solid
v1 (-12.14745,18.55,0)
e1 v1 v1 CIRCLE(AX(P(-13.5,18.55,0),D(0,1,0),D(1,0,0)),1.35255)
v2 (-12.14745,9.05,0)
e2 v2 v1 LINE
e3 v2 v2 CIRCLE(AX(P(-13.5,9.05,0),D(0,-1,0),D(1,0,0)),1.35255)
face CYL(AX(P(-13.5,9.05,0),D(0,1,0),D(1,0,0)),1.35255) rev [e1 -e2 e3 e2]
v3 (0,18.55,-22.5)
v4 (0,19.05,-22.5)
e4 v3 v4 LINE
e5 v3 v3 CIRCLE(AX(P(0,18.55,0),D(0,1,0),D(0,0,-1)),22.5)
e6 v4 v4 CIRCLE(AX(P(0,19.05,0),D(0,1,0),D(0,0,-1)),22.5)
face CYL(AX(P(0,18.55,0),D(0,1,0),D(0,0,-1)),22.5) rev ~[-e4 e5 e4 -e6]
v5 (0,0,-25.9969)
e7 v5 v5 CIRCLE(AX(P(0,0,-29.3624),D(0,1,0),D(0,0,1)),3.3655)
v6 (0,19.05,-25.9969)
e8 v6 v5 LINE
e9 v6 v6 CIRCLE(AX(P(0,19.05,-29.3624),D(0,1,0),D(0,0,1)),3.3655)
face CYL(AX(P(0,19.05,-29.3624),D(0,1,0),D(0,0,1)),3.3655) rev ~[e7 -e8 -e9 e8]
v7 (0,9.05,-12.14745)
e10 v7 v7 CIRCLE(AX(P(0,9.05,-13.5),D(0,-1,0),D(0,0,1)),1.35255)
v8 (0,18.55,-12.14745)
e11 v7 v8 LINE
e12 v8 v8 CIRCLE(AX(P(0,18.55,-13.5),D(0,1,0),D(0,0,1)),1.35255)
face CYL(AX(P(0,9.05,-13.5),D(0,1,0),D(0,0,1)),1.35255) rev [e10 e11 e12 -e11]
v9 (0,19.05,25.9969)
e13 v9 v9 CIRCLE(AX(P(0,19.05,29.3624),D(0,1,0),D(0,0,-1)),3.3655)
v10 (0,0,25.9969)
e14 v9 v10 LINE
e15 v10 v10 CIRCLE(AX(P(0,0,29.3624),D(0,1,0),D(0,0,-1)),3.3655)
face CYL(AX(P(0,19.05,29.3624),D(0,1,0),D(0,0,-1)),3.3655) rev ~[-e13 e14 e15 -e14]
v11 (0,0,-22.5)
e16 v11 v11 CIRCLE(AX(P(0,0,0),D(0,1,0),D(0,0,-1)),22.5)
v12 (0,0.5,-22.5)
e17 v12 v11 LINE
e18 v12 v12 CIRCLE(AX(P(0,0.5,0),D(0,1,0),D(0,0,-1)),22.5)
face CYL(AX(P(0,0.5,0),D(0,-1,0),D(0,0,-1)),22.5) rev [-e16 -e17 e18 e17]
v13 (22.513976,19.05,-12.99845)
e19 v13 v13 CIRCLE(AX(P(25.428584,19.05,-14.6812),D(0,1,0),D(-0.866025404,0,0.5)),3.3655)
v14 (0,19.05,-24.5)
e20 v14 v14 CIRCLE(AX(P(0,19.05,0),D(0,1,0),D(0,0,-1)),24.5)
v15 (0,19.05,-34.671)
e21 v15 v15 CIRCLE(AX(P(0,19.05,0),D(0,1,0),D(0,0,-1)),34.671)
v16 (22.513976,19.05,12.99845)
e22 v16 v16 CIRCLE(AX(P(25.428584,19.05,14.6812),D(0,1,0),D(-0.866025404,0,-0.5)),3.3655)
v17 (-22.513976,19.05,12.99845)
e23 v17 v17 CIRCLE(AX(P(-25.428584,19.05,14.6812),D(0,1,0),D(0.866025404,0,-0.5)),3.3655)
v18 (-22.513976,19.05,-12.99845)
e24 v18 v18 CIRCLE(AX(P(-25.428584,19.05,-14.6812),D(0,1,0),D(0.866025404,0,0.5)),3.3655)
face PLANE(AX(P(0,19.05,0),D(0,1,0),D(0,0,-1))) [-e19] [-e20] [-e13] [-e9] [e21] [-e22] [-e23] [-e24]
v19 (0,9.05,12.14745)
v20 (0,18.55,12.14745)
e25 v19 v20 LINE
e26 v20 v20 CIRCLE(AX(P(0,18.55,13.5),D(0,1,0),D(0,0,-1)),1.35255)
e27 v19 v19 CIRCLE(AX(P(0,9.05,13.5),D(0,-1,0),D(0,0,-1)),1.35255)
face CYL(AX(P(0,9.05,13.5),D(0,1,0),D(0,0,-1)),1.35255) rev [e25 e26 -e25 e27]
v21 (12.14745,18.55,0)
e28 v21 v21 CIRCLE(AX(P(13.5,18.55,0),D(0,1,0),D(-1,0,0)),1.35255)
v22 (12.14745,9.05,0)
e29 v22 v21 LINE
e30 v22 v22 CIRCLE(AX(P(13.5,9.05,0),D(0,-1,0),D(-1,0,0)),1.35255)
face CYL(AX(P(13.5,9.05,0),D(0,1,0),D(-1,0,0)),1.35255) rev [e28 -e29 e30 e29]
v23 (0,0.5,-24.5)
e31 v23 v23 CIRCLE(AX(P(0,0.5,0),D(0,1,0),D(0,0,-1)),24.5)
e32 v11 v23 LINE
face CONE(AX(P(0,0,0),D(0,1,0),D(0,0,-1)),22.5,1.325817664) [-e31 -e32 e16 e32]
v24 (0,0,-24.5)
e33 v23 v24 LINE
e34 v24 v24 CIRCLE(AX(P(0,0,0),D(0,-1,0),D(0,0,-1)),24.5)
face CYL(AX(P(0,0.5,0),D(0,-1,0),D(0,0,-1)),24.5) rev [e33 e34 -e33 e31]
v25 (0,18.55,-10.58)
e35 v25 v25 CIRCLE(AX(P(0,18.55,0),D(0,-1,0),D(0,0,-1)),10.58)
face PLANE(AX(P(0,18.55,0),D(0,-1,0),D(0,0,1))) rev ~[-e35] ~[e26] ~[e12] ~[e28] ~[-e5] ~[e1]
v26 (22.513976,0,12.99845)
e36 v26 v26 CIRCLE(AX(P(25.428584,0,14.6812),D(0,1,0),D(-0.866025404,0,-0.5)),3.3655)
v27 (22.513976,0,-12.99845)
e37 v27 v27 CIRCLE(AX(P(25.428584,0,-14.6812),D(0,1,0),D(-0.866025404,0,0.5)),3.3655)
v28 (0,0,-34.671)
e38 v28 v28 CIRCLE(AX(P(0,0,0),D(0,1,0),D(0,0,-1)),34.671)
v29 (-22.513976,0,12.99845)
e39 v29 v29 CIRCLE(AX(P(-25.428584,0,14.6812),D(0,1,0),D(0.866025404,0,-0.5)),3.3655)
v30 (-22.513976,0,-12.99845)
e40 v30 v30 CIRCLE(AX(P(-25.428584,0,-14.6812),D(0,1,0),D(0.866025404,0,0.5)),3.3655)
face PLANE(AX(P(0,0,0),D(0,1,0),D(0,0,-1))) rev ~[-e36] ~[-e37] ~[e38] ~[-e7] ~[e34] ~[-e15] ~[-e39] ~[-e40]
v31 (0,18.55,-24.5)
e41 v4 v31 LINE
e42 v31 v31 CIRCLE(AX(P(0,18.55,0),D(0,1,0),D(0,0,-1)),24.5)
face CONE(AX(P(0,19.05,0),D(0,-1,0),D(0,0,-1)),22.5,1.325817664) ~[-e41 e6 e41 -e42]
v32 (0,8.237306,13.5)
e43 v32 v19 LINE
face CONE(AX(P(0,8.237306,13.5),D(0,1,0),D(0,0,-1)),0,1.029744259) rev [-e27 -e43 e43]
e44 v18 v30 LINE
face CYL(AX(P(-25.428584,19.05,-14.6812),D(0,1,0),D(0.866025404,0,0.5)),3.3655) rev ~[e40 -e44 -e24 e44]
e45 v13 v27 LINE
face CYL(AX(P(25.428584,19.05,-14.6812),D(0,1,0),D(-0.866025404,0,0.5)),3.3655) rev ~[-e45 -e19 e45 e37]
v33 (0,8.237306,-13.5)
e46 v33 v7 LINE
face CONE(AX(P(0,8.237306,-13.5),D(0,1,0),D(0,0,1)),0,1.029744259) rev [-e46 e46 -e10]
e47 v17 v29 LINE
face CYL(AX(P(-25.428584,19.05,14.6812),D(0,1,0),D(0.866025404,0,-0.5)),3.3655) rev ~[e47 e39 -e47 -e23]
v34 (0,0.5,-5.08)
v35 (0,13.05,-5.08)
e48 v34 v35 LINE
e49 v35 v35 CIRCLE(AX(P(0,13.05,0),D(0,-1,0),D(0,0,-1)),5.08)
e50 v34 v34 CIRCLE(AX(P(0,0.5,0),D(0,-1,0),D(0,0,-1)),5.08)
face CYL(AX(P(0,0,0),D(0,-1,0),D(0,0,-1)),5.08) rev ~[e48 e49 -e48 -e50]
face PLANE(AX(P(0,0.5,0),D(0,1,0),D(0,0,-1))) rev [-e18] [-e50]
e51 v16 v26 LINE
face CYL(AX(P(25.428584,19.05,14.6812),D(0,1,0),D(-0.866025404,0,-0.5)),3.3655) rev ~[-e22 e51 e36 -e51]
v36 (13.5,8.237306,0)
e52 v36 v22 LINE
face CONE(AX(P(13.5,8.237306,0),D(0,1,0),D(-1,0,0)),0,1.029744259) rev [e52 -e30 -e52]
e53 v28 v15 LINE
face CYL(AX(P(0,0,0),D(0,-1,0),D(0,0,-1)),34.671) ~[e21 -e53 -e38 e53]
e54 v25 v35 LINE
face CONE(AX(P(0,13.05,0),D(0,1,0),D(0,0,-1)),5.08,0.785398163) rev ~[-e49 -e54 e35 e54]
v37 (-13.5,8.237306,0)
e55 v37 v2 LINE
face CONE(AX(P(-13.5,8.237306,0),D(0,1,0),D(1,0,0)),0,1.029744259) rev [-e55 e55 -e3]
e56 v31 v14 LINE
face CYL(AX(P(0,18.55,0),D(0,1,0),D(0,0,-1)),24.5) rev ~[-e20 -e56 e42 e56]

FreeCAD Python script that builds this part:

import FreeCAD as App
import Part
import Sketcher
from FreeCAD import Vector
Q = App.Units.Quantity


def edges_at(feature, points):
    """Names of the edges that pass closest to the given points."""
    edges = feature.Shape.Edges
    near = lambda p: min(range(len(edges)), key=lambda i: edges[i].distToShape(Part.Vertex(*p))[0])
    return sorted({f"Edge{near(p) + 1}" for p in points})

doc = App.newDocument("Part")
body = doc.addObject("PartDesign::Body", "Body")

# Sketch on XZ plane
sketch1 = body.newObject("Sketcher::SketchObject", "Sketch")
sketch1.AttachmentSupport = (doc.getObject("XZ_Plane"), [""])
sketch1.MapMode = "FlatFace"
sketch1.addGeometry(Part.Circle(Vector(0, 0, 0), Vector(0, 0, 1), 34.671), False)
sketch1.addConstraint(Sketcher.Constraint("Coincident", 0, 3, -1, 1))
sketch1.addConstraint(Sketcher.Constraint("Diameter", 0, Q("69.342 mm")))
pad1 = body.newObject("PartDesign::Pad", "Pad")
pad1.Profile = sketch1
pad1.Length = 19.05
pad1.Reversed = True

# Sketch on XZ plane
sketch2 = body.newObject("Sketcher::SketchObject", "Sketch001")
sketch2.AttachmentSupport = (doc.getObject("XZ_Plane"), [""])
sketch2.MapMode = "FlatFace"
sketch2.addGeometry(Part.Circle(Vector(0, 0, 0), Vector(0, 0, 1), 5.08), False)
sketch2.addConstraint(Sketcher.Constraint("Coincident", 0, 3, -1, 1))
sketch2.addConstraint(Sketcher.Constraint("Diameter", 0, Q("10.16 mm")))
pocket1 = body.newObject("PartDesign::Pocket", "Pocket")
pocket1.Profile = sketch2
pocket1.Type = "ThroughAll"
doc.recompute()

chamfer = body.newObject("PartDesign::Chamfer", "Chamfer")
chamfer.Base = (pocket1, edges_at(pocket1, [(0, 19.05, 5.08)]))
chamfer.Size = 6

# Sketch on YZ plane
sketch3 = body.newObject("Sketcher::SketchObject", "Sketch002")
sketch3.AttachmentSupport = (doc.getObject("YZ_Plane"), [""])
sketch3.MapMode = "FlatFace"
sketch3.addGeometry(Part.LineSegment(Vector(8.237306, -13.5, 0), Vector(19.05, -13.5, 0)), False)
sketch3.addGeometry(Part.LineSegment(Vector(19.05, -13.5, 0), Vector(19.05, -12.14745, 0)), False)
sketch3.addGeometry(Part.LineSegment(Vector(19.05, -12.14745, 0), Vector(9.05, -12.14745, 0)), False)
sketch3.addGeometry(Part.LineSegment(Vector(9.05, -12.14745, 0), Vector(8.237306, -13.5, 0)), False)
sketch3.addGeometry(Part.LineSegment(Vector(19.05, -13.5, 0), Vector(8.237306, -13.5, 0)), True)  # axis
sketch3.addConstraint(Sketcher.Constraint("Coincident", 0, 2, 1, 1))
sketch3.addConstraint(Sketcher.Constraint("Coincident", 1, 2, 2, 1))
sketch3.addConstraint(Sketcher.Constraint("Coincident", 2, 2, 3, 1))
sketch3.addConstraint(Sketcher.Constraint("Coincident", 3, 2, 0, 1))
sketch3.addConstraint(Sketcher.Constraint("Horizontal", 0))
sketch3.addConstraint(Sketcher.Constraint("Vertical", 1))
sketch3.addConstraint(Sketcher.Constraint("Horizontal", 2))
sketch3.addConstraint(Sketcher.Constraint("Horizontal", 4))
sketch3.addConstraint(Sketcher.Constraint("Coincident", 4, 1, 0, 2))
sketch3.addConstraint(Sketcher.Constraint("Equal", 0, 4))
sketch3.addConstraint(Sketcher.Constraint("DistanceX", 2, 2, 2, 1, Q("10 mm")))
sketch3.addConstraint(Sketcher.Constraint("Angle", 3, Q("-121 deg")))
sketch3.addConstraint(Sketcher.Constraint("DistanceY", 0, 2, -1, 1, Q("13.5 mm")))
sketch3.addConstraint(Sketcher.Constraint("DistanceX", -1, 1, 0, 2, Q("19.05 mm")))
sketch3.addConstraint(Sketcher.Constraint("DistanceY", 1, 1, 1, 2, Q("1.35255 mm")))
groove = body.newObject("PartDesign::Groove", "Groove")
groove.Profile = sketch3
groove.ReferenceAxis = (sketch3, ["Axis0"])
groove.Angle = 360
doc.recompute()

polarpattern = body.newObject("PartDesign::PolarPattern", "PolarPattern")
polarpattern.Originals = [groove]
polarpattern.Axis = (doc.getObject("Y_Axis"), [""])
polarpattern.Angle = 360
polarpattern.Occurrences = 4
body.Tip = polarpattern

# Sketch on XZ plane
sketch4 = body.newObject("Sketcher::SketchObject", "Sketch003")
sketch4.AttachmentSupport = (doc.getObject("XZ_Plane"), [""])
sketch4.MapMode = "FlatFace"
sketch4.AttachmentOffset = App.Placement(Vector(0, 0, -19.05), App.Rotation())
sketch4.addGeometry(Part.Circle(Vector(0, -29.3624, 0), Vector(0, 0, 1), 3.3655), False)
sketch4.addConstraint(Sketcher.Constraint("PointOnObject", 0, 3, -2))
sketch4.addConstraint(Sketcher.Constraint("Diameter", 0, Q("6.731 mm")))
sketch4.addConstraint(Sketcher.Constraint("DistanceY", 0, 3, -1, 1, Q("29.3624 mm")))
pocket2 = body.newObject("PartDesign::Pocket", "Pocket001")
pocket2.Profile = sketch4
pocket2.Type = "ThroughAll"
pocket2.Reversed = True
doc.recompute()

polarpattern2 = body.newObject("PartDesign::PolarPattern", "PolarPattern001")
polarpattern2.Originals = [pocket2]
polarpattern2.Axis = (doc.getObject("Y_Axis"), [""])
polarpattern2.Angle = 360
polarpattern2.Occurrences = 6
body.Tip = polarpattern2

# Sketch on XY plane
sketch5 = body.newObject("Sketcher::SketchObject", "Sketch004")
sketch5.AttachmentSupport = (doc.getObject("XY_Plane"), [""])
sketch5.MapMode = "FlatFace"
sketch5.addGeometry(Part.LineSegment(Vector(0, 0.5, 0), Vector(0, -7.987976, 0)), False)
sketch5.addGeometry(Part.LineSegment(Vector(0, -7.987976, 0), Vector(24.5, -7.987976, 0)), False)
sketch5.addGeometry(Part.LineSegment(Vector(24.5, -7.987976, 0), Vector(24.5, 0.5, 0)), False)
sketch5.addGeometry(Part.LineSegment(Vector(24.5, 0.5, 0), Vector(22.5, 0, 0)), False)
sketch5.addGeometry(Part.LineSegment(Vector(22.5, 0, 0), Vector(22.5, 0.5, 0)), False)
sketch5.addGeometry(Part.LineSegment(Vector(22.5, 0.5, 0), Vector(0, 0.5, 0)), False)
sketch5.addConstraint(Sketcher.Constraint("Coincident", 0, 2, 1, 1))
sketch5.addConstraint(Sketcher.Constraint("Coincident", 1, 2, 2, 1))
sketch5.addConstraint(Sketcher.Constraint("Coincident", 2, 2, 3, 1))
sketch5.addConstraint(Sketcher.Constraint("Coincident", 3, 2, 4, 1))
sketch5.addConstraint(Sketcher.Constraint("Coincident", 4, 2, 5, 1))
sketch5.addConstraint(Sketcher.Constraint("Coincident", 5, 2, 0, 1))
sketch5.addConstraint(Sketcher.Constraint("Vertical", 0))
sketch5.addConstraint(Sketcher.Constraint("Horizontal", 1))
sketch5.addConstraint(Sketcher.Constraint("Vertical", 2))
sketch5.addConstraint(Sketcher.Constraint("Vertical", 4))
sketch5.addConstraint(Sketcher.Constraint("Horizontal", 5))
sketch5.addConstraint(Sketcher.Constraint("PointOnObject", 0, 2, -2))
sketch5.addConstraint(Sketcher.Constraint("PointOnObject", 3, 2, -1))
sketch5.addConstraint(Sketcher.Constraint("Horizontal", 2, 2, 4, 2))
sketch5.addConstraint(Sketcher.Constraint("DistanceX", 1, 1, 1, 2, Q("24.5 mm")))
sketch5.addConstraint(Sketcher.Constraint("DistanceX", 5, 2, 5, 1, Q("22.5 mm")))
sketch5.addConstraint(Sketcher.Constraint("DistanceY", 4, 1, 4, 2, Q("0.5 mm")))
sketch5.addConstraint(Sketcher.Constraint("DistanceY", 0, 2, 0, 1, Q("8.487976 mm")))
groove2 = body.newObject("PartDesign::Groove", "Groove001")
groove2.Profile = sketch5
groove2.ReferenceAxis = (sketch5, ["V_Axis"])
groove2.Angle = 360
doc.recompute()

datumplane = body.newObject("PartDesign::Plane", "DatumPlane")
datumplane.AttachmentSupport = (doc.getObject("XZ_Plane"), [""])
datumplane.MapMode = "FlatFace"
datumplane.AttachmentOffset = App.Placement(Vector(0, 0, -9.525), App.Rotation())
mirrored = body.newObject("PartDesign::Mirrored", "Mirrored")
mirrored.Originals = [groove2]
mirrored.MirrorPlane = (datumplane, [""])
body.Tip = mirrored

doc.recompute()
